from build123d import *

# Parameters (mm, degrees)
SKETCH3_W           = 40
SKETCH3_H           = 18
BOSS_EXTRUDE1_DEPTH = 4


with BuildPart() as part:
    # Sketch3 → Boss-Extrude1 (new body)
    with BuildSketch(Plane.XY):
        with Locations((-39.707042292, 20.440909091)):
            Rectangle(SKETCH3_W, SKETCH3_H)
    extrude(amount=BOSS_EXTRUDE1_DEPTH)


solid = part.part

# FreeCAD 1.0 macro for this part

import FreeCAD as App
import Part
import Sketcher

doc = App.newDocument("Part")
params = doc.addObject("Spreadsheet::Sheet", "Params")
for row, (alias, value) in enumerate([
    ("sketch1_width", "40 mm"),
    ("sketch1_height", "18 mm"),
    ("pad1_length", "4 mm"),
], start=1):
    params.set(f"A{row}", alias)
    params.set(f"B{row}", "=" + value)
    params.setAlias(f"B{row}", alias)

body = doc.addObject("PartDesign::Body", "Body")

# Sketch on XY plane
sketch1 = doc.addObject("Sketcher::SketchObject", "Sketch")
body.addObject(sketch1)
sketch1.AttachmentSupport = (doc.XY_Plane, [""])
sketch1.MapMode = "FlatFace"
sketch1.addGeometry(Part.LineSegment(App.Vector(-60, 29, 0), App.Vector(-60, 11, 0)), False)
sketch1.addGeometry(Part.LineSegment(App.Vector(-60, 11, 0), App.Vector(-20, 11, 0)), False)
sketch1.addGeometry(Part.LineSegment(App.Vector(-20, 11, 0), App.Vector(-20, 29, 0)), False)
sketch1.addGeometry(Part.LineSegment(App.Vector(-20, 29, 0), App.Vector(-60, 29, 0)), False)
sketch1.addConstraint(Sketcher.Constraint("Coincident", 0, 2, 1, 1))
sketch1.addConstraint(Sketcher.Constraint("Coincident", 1, 2, 2, 1))
sketch1.addConstraint(Sketcher.Constraint("Coincident", 2, 2, 3, 1))
sketch1.addConstraint(Sketcher.Constraint("Coincident", 3, 2, 0, 1))
sketch1.addConstraint(Sketcher.Constraint("Vertical", 0))
sketch1.addConstraint(Sketcher.Constraint("Horizontal", 1))
sketch1.addConstraint(Sketcher.Constraint("Vertical", 2))
sketch1.addConstraint(Sketcher.Constraint("Horizontal", 3))
sketch1.addConstraint(Sketcher.Constraint("DistanceX", 1, 1, 1, 2, 40.0))
sketch1.addConstraint(Sketcher.Constraint("DistanceY", 0, 2, 0, 1, 18.0))
sketch1.addConstraint(Sketcher.Constraint("DistanceY", -1, 1, 0, 2, 11.440909))
sketch1.addConstraint(Sketcher.Constraint("DistanceX", 0, 2, -1, 1, 59.707042))
sketch1.setExpression("Constraints[8]", "Params.sketch1_width")
sketch1.setExpression("Constraints[9]", "Params.sketch1_height")
pad1 = doc.addObject("PartDesign::Pad", "Pad")
body.addObject(pad1)
pad1.Profile = sketch1
pad1.setExpression("Length", "Params.pad1_length")

doc.recompute()
